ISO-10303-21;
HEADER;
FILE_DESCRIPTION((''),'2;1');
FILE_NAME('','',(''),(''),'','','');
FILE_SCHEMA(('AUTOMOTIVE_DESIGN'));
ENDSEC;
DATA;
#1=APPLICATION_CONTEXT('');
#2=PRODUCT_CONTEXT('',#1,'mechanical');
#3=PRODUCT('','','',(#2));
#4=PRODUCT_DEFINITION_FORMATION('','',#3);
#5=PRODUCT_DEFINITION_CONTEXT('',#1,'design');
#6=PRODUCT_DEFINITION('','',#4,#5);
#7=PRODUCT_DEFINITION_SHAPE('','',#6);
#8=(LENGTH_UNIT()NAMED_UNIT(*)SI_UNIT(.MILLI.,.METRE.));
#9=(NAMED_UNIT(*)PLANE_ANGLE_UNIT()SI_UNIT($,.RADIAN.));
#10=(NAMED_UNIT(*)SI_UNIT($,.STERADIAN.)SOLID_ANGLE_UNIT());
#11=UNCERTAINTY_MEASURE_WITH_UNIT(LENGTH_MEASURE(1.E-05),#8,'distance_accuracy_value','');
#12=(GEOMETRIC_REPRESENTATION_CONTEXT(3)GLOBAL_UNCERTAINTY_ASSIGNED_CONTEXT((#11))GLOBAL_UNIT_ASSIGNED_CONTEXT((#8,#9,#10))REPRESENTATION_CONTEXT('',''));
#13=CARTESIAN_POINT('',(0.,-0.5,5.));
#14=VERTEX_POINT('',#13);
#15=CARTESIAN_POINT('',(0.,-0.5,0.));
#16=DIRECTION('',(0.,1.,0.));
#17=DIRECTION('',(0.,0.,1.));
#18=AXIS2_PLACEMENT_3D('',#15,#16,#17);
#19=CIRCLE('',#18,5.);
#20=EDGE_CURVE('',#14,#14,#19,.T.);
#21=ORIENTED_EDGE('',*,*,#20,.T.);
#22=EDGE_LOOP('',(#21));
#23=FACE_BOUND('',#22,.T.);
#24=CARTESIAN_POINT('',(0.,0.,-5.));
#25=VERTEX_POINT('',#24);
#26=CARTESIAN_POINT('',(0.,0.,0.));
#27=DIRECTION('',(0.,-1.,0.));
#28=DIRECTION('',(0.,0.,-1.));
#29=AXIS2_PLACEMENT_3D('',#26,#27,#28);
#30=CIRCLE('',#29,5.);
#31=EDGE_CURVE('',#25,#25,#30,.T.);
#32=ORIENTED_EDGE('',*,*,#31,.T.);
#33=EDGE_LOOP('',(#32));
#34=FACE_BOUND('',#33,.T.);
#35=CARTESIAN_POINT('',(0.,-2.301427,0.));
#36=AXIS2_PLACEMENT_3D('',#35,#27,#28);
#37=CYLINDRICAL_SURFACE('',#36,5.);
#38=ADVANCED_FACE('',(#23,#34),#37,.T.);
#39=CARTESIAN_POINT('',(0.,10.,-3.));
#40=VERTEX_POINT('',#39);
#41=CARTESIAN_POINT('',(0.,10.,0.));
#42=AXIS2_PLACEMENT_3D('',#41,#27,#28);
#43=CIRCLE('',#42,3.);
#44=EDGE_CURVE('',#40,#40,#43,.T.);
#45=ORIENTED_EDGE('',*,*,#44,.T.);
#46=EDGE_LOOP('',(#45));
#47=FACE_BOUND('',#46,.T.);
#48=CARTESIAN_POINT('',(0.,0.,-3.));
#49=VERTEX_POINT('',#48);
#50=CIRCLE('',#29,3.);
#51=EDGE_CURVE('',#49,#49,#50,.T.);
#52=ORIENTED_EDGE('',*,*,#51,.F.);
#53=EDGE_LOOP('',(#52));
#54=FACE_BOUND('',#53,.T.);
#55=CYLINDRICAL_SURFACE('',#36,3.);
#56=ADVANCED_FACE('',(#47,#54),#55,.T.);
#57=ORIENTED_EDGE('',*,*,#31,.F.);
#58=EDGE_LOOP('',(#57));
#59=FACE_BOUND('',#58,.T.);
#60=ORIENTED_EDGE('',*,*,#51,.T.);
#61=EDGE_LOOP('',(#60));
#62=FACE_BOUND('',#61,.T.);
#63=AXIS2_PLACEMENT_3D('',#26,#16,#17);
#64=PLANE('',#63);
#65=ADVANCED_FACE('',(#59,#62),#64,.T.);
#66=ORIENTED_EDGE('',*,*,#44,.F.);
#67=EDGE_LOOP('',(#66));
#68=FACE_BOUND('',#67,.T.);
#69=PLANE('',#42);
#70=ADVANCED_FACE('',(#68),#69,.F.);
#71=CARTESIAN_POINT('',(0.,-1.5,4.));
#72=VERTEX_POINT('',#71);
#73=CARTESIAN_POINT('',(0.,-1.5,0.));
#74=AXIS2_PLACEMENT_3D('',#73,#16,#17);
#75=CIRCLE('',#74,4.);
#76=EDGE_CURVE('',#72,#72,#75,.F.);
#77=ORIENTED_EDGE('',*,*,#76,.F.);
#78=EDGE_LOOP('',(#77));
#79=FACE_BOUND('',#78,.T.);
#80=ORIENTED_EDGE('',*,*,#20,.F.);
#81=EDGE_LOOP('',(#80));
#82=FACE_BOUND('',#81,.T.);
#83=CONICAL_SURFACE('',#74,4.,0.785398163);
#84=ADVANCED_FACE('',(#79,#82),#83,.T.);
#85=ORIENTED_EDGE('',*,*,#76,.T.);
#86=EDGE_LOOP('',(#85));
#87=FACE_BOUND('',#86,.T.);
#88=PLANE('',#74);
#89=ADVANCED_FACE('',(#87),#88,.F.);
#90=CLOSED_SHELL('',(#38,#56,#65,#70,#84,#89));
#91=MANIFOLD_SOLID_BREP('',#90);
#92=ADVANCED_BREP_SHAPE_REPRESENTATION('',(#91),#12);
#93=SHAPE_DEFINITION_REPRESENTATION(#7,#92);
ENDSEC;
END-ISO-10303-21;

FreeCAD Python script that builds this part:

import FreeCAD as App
import Part
import Sketcher

V = App.Vector


def edges_at(feature, points):
    """Names of the edges that pass closest to the given points."""
    edges = feature.Shape.Edges
    near = lambda p: min(range(len(edges)), key=lambda i: edges[i].distToShape(Part.Vertex(*p))[0])
    return sorted({f"Edge{near(p) + 1}" for p in points})

doc = App.newDocument("Part")
body = doc.addObject("PartDesign::Body", "Body")

# Sketch on YZ plane
sketch1 = body.newObject("Sketcher::SketchObject", "Sketch")
sketch1.AttachmentSupport = (doc.getObject("YZ_Plane"), [""])
sketch1.MapMode = "FlatFace"
sketch1.addGeometry(Part.LineSegment(V(-1.5, 0, 0), V(10, 0, 0)), False)
sketch1.addGeometry(Part.LineSegment(V(10, 0, 0), V(10, 3, 0)), False)
sketch1.addGeometry(Part.LineSegment(V(10, 3, 0), V(0, 3, 0)), False)
sketch1.addGeometry(Part.LineSegment(V(0, 3, 0), V(0, 5, 0)), False)
sketch1.addGeometry(Part.LineSegment(V(0, 5, 0), V(-1.5, 5, 0)), False)
sketch1.addGeometry(Part.LineSegment(V(-1.5, 5, 0), V(-1.5, 0, 0)), False)
sketch1.addConstraint(Sketcher.Constraint("Coincident", 0, 2, 1, 1))
sketch1.addConstraint(Sketcher.Constraint("Coincident", 1, 2, 2, 1))
sketch1.addConstraint(Sketcher.Constraint("Coincident", 2, 2, 3, 1))
sketch1.addConstraint(Sketcher.Constraint("Coincident", 3, 2, 4, 1))
sketch1.addConstraint(Sketcher.Constraint("Coincident", 4, 2, 5, 1))
sketch1.addConstraint(Sketcher.Constraint("Coincident", 5, 2, 0, 1))
sketch1.addConstraint(Sketcher.Constraint("Horizontal", 0))
sketch1.addConstraint(Sketcher.Constraint("Vertical", 1))
sketch1.addConstraint(Sketcher.Constraint("Horizontal", 2))
sketch1.addConstraint(Sketcher.Constraint("Vertical", 3))
sketch1.addConstraint(Sketcher.Constraint("Horizontal", 4))
sketch1.addConstraint(Sketcher.Constraint("Vertical", 5))
sketch1.addConstraint(Sketcher.Constraint("PointOnObject", 0, 2, -1))
sketch1.addConstraint(Sketcher.Constraint("PointOnObject", 2, 2, -2))
sketch1.addConstraint(Sketcher.Constraint("DistanceX", 2, 2, 2, 1, 10.0))
sketch1.addConstraint(Sketcher.Constraint("DistanceY", 1, 1, 1, 2, 3.0))
sketch1.addConstraint(Sketcher.Constraint("DistanceY", 3, 1, 3, 2, 2.0))
sketch1.addConstraint(Sketcher.Constraint("DistanceX", 0, 1, 0, 2, 11.5))
revolution = body.newObject("PartDesign::Revolution", "Revolution")
revolution.Profile = sketch1
revolution.ReferenceAxis = (sketch1, ["H_Axis"])
revolution.Angle = 360
doc.recompute()

chamfer = body.newObject("PartDesign::Chamfer", "Chamfer")
chamfer.Base = (revolution, edges_at(revolution, [(0, -1.5, 5)]))
chamfer.Size = 1

doc.recompute()
